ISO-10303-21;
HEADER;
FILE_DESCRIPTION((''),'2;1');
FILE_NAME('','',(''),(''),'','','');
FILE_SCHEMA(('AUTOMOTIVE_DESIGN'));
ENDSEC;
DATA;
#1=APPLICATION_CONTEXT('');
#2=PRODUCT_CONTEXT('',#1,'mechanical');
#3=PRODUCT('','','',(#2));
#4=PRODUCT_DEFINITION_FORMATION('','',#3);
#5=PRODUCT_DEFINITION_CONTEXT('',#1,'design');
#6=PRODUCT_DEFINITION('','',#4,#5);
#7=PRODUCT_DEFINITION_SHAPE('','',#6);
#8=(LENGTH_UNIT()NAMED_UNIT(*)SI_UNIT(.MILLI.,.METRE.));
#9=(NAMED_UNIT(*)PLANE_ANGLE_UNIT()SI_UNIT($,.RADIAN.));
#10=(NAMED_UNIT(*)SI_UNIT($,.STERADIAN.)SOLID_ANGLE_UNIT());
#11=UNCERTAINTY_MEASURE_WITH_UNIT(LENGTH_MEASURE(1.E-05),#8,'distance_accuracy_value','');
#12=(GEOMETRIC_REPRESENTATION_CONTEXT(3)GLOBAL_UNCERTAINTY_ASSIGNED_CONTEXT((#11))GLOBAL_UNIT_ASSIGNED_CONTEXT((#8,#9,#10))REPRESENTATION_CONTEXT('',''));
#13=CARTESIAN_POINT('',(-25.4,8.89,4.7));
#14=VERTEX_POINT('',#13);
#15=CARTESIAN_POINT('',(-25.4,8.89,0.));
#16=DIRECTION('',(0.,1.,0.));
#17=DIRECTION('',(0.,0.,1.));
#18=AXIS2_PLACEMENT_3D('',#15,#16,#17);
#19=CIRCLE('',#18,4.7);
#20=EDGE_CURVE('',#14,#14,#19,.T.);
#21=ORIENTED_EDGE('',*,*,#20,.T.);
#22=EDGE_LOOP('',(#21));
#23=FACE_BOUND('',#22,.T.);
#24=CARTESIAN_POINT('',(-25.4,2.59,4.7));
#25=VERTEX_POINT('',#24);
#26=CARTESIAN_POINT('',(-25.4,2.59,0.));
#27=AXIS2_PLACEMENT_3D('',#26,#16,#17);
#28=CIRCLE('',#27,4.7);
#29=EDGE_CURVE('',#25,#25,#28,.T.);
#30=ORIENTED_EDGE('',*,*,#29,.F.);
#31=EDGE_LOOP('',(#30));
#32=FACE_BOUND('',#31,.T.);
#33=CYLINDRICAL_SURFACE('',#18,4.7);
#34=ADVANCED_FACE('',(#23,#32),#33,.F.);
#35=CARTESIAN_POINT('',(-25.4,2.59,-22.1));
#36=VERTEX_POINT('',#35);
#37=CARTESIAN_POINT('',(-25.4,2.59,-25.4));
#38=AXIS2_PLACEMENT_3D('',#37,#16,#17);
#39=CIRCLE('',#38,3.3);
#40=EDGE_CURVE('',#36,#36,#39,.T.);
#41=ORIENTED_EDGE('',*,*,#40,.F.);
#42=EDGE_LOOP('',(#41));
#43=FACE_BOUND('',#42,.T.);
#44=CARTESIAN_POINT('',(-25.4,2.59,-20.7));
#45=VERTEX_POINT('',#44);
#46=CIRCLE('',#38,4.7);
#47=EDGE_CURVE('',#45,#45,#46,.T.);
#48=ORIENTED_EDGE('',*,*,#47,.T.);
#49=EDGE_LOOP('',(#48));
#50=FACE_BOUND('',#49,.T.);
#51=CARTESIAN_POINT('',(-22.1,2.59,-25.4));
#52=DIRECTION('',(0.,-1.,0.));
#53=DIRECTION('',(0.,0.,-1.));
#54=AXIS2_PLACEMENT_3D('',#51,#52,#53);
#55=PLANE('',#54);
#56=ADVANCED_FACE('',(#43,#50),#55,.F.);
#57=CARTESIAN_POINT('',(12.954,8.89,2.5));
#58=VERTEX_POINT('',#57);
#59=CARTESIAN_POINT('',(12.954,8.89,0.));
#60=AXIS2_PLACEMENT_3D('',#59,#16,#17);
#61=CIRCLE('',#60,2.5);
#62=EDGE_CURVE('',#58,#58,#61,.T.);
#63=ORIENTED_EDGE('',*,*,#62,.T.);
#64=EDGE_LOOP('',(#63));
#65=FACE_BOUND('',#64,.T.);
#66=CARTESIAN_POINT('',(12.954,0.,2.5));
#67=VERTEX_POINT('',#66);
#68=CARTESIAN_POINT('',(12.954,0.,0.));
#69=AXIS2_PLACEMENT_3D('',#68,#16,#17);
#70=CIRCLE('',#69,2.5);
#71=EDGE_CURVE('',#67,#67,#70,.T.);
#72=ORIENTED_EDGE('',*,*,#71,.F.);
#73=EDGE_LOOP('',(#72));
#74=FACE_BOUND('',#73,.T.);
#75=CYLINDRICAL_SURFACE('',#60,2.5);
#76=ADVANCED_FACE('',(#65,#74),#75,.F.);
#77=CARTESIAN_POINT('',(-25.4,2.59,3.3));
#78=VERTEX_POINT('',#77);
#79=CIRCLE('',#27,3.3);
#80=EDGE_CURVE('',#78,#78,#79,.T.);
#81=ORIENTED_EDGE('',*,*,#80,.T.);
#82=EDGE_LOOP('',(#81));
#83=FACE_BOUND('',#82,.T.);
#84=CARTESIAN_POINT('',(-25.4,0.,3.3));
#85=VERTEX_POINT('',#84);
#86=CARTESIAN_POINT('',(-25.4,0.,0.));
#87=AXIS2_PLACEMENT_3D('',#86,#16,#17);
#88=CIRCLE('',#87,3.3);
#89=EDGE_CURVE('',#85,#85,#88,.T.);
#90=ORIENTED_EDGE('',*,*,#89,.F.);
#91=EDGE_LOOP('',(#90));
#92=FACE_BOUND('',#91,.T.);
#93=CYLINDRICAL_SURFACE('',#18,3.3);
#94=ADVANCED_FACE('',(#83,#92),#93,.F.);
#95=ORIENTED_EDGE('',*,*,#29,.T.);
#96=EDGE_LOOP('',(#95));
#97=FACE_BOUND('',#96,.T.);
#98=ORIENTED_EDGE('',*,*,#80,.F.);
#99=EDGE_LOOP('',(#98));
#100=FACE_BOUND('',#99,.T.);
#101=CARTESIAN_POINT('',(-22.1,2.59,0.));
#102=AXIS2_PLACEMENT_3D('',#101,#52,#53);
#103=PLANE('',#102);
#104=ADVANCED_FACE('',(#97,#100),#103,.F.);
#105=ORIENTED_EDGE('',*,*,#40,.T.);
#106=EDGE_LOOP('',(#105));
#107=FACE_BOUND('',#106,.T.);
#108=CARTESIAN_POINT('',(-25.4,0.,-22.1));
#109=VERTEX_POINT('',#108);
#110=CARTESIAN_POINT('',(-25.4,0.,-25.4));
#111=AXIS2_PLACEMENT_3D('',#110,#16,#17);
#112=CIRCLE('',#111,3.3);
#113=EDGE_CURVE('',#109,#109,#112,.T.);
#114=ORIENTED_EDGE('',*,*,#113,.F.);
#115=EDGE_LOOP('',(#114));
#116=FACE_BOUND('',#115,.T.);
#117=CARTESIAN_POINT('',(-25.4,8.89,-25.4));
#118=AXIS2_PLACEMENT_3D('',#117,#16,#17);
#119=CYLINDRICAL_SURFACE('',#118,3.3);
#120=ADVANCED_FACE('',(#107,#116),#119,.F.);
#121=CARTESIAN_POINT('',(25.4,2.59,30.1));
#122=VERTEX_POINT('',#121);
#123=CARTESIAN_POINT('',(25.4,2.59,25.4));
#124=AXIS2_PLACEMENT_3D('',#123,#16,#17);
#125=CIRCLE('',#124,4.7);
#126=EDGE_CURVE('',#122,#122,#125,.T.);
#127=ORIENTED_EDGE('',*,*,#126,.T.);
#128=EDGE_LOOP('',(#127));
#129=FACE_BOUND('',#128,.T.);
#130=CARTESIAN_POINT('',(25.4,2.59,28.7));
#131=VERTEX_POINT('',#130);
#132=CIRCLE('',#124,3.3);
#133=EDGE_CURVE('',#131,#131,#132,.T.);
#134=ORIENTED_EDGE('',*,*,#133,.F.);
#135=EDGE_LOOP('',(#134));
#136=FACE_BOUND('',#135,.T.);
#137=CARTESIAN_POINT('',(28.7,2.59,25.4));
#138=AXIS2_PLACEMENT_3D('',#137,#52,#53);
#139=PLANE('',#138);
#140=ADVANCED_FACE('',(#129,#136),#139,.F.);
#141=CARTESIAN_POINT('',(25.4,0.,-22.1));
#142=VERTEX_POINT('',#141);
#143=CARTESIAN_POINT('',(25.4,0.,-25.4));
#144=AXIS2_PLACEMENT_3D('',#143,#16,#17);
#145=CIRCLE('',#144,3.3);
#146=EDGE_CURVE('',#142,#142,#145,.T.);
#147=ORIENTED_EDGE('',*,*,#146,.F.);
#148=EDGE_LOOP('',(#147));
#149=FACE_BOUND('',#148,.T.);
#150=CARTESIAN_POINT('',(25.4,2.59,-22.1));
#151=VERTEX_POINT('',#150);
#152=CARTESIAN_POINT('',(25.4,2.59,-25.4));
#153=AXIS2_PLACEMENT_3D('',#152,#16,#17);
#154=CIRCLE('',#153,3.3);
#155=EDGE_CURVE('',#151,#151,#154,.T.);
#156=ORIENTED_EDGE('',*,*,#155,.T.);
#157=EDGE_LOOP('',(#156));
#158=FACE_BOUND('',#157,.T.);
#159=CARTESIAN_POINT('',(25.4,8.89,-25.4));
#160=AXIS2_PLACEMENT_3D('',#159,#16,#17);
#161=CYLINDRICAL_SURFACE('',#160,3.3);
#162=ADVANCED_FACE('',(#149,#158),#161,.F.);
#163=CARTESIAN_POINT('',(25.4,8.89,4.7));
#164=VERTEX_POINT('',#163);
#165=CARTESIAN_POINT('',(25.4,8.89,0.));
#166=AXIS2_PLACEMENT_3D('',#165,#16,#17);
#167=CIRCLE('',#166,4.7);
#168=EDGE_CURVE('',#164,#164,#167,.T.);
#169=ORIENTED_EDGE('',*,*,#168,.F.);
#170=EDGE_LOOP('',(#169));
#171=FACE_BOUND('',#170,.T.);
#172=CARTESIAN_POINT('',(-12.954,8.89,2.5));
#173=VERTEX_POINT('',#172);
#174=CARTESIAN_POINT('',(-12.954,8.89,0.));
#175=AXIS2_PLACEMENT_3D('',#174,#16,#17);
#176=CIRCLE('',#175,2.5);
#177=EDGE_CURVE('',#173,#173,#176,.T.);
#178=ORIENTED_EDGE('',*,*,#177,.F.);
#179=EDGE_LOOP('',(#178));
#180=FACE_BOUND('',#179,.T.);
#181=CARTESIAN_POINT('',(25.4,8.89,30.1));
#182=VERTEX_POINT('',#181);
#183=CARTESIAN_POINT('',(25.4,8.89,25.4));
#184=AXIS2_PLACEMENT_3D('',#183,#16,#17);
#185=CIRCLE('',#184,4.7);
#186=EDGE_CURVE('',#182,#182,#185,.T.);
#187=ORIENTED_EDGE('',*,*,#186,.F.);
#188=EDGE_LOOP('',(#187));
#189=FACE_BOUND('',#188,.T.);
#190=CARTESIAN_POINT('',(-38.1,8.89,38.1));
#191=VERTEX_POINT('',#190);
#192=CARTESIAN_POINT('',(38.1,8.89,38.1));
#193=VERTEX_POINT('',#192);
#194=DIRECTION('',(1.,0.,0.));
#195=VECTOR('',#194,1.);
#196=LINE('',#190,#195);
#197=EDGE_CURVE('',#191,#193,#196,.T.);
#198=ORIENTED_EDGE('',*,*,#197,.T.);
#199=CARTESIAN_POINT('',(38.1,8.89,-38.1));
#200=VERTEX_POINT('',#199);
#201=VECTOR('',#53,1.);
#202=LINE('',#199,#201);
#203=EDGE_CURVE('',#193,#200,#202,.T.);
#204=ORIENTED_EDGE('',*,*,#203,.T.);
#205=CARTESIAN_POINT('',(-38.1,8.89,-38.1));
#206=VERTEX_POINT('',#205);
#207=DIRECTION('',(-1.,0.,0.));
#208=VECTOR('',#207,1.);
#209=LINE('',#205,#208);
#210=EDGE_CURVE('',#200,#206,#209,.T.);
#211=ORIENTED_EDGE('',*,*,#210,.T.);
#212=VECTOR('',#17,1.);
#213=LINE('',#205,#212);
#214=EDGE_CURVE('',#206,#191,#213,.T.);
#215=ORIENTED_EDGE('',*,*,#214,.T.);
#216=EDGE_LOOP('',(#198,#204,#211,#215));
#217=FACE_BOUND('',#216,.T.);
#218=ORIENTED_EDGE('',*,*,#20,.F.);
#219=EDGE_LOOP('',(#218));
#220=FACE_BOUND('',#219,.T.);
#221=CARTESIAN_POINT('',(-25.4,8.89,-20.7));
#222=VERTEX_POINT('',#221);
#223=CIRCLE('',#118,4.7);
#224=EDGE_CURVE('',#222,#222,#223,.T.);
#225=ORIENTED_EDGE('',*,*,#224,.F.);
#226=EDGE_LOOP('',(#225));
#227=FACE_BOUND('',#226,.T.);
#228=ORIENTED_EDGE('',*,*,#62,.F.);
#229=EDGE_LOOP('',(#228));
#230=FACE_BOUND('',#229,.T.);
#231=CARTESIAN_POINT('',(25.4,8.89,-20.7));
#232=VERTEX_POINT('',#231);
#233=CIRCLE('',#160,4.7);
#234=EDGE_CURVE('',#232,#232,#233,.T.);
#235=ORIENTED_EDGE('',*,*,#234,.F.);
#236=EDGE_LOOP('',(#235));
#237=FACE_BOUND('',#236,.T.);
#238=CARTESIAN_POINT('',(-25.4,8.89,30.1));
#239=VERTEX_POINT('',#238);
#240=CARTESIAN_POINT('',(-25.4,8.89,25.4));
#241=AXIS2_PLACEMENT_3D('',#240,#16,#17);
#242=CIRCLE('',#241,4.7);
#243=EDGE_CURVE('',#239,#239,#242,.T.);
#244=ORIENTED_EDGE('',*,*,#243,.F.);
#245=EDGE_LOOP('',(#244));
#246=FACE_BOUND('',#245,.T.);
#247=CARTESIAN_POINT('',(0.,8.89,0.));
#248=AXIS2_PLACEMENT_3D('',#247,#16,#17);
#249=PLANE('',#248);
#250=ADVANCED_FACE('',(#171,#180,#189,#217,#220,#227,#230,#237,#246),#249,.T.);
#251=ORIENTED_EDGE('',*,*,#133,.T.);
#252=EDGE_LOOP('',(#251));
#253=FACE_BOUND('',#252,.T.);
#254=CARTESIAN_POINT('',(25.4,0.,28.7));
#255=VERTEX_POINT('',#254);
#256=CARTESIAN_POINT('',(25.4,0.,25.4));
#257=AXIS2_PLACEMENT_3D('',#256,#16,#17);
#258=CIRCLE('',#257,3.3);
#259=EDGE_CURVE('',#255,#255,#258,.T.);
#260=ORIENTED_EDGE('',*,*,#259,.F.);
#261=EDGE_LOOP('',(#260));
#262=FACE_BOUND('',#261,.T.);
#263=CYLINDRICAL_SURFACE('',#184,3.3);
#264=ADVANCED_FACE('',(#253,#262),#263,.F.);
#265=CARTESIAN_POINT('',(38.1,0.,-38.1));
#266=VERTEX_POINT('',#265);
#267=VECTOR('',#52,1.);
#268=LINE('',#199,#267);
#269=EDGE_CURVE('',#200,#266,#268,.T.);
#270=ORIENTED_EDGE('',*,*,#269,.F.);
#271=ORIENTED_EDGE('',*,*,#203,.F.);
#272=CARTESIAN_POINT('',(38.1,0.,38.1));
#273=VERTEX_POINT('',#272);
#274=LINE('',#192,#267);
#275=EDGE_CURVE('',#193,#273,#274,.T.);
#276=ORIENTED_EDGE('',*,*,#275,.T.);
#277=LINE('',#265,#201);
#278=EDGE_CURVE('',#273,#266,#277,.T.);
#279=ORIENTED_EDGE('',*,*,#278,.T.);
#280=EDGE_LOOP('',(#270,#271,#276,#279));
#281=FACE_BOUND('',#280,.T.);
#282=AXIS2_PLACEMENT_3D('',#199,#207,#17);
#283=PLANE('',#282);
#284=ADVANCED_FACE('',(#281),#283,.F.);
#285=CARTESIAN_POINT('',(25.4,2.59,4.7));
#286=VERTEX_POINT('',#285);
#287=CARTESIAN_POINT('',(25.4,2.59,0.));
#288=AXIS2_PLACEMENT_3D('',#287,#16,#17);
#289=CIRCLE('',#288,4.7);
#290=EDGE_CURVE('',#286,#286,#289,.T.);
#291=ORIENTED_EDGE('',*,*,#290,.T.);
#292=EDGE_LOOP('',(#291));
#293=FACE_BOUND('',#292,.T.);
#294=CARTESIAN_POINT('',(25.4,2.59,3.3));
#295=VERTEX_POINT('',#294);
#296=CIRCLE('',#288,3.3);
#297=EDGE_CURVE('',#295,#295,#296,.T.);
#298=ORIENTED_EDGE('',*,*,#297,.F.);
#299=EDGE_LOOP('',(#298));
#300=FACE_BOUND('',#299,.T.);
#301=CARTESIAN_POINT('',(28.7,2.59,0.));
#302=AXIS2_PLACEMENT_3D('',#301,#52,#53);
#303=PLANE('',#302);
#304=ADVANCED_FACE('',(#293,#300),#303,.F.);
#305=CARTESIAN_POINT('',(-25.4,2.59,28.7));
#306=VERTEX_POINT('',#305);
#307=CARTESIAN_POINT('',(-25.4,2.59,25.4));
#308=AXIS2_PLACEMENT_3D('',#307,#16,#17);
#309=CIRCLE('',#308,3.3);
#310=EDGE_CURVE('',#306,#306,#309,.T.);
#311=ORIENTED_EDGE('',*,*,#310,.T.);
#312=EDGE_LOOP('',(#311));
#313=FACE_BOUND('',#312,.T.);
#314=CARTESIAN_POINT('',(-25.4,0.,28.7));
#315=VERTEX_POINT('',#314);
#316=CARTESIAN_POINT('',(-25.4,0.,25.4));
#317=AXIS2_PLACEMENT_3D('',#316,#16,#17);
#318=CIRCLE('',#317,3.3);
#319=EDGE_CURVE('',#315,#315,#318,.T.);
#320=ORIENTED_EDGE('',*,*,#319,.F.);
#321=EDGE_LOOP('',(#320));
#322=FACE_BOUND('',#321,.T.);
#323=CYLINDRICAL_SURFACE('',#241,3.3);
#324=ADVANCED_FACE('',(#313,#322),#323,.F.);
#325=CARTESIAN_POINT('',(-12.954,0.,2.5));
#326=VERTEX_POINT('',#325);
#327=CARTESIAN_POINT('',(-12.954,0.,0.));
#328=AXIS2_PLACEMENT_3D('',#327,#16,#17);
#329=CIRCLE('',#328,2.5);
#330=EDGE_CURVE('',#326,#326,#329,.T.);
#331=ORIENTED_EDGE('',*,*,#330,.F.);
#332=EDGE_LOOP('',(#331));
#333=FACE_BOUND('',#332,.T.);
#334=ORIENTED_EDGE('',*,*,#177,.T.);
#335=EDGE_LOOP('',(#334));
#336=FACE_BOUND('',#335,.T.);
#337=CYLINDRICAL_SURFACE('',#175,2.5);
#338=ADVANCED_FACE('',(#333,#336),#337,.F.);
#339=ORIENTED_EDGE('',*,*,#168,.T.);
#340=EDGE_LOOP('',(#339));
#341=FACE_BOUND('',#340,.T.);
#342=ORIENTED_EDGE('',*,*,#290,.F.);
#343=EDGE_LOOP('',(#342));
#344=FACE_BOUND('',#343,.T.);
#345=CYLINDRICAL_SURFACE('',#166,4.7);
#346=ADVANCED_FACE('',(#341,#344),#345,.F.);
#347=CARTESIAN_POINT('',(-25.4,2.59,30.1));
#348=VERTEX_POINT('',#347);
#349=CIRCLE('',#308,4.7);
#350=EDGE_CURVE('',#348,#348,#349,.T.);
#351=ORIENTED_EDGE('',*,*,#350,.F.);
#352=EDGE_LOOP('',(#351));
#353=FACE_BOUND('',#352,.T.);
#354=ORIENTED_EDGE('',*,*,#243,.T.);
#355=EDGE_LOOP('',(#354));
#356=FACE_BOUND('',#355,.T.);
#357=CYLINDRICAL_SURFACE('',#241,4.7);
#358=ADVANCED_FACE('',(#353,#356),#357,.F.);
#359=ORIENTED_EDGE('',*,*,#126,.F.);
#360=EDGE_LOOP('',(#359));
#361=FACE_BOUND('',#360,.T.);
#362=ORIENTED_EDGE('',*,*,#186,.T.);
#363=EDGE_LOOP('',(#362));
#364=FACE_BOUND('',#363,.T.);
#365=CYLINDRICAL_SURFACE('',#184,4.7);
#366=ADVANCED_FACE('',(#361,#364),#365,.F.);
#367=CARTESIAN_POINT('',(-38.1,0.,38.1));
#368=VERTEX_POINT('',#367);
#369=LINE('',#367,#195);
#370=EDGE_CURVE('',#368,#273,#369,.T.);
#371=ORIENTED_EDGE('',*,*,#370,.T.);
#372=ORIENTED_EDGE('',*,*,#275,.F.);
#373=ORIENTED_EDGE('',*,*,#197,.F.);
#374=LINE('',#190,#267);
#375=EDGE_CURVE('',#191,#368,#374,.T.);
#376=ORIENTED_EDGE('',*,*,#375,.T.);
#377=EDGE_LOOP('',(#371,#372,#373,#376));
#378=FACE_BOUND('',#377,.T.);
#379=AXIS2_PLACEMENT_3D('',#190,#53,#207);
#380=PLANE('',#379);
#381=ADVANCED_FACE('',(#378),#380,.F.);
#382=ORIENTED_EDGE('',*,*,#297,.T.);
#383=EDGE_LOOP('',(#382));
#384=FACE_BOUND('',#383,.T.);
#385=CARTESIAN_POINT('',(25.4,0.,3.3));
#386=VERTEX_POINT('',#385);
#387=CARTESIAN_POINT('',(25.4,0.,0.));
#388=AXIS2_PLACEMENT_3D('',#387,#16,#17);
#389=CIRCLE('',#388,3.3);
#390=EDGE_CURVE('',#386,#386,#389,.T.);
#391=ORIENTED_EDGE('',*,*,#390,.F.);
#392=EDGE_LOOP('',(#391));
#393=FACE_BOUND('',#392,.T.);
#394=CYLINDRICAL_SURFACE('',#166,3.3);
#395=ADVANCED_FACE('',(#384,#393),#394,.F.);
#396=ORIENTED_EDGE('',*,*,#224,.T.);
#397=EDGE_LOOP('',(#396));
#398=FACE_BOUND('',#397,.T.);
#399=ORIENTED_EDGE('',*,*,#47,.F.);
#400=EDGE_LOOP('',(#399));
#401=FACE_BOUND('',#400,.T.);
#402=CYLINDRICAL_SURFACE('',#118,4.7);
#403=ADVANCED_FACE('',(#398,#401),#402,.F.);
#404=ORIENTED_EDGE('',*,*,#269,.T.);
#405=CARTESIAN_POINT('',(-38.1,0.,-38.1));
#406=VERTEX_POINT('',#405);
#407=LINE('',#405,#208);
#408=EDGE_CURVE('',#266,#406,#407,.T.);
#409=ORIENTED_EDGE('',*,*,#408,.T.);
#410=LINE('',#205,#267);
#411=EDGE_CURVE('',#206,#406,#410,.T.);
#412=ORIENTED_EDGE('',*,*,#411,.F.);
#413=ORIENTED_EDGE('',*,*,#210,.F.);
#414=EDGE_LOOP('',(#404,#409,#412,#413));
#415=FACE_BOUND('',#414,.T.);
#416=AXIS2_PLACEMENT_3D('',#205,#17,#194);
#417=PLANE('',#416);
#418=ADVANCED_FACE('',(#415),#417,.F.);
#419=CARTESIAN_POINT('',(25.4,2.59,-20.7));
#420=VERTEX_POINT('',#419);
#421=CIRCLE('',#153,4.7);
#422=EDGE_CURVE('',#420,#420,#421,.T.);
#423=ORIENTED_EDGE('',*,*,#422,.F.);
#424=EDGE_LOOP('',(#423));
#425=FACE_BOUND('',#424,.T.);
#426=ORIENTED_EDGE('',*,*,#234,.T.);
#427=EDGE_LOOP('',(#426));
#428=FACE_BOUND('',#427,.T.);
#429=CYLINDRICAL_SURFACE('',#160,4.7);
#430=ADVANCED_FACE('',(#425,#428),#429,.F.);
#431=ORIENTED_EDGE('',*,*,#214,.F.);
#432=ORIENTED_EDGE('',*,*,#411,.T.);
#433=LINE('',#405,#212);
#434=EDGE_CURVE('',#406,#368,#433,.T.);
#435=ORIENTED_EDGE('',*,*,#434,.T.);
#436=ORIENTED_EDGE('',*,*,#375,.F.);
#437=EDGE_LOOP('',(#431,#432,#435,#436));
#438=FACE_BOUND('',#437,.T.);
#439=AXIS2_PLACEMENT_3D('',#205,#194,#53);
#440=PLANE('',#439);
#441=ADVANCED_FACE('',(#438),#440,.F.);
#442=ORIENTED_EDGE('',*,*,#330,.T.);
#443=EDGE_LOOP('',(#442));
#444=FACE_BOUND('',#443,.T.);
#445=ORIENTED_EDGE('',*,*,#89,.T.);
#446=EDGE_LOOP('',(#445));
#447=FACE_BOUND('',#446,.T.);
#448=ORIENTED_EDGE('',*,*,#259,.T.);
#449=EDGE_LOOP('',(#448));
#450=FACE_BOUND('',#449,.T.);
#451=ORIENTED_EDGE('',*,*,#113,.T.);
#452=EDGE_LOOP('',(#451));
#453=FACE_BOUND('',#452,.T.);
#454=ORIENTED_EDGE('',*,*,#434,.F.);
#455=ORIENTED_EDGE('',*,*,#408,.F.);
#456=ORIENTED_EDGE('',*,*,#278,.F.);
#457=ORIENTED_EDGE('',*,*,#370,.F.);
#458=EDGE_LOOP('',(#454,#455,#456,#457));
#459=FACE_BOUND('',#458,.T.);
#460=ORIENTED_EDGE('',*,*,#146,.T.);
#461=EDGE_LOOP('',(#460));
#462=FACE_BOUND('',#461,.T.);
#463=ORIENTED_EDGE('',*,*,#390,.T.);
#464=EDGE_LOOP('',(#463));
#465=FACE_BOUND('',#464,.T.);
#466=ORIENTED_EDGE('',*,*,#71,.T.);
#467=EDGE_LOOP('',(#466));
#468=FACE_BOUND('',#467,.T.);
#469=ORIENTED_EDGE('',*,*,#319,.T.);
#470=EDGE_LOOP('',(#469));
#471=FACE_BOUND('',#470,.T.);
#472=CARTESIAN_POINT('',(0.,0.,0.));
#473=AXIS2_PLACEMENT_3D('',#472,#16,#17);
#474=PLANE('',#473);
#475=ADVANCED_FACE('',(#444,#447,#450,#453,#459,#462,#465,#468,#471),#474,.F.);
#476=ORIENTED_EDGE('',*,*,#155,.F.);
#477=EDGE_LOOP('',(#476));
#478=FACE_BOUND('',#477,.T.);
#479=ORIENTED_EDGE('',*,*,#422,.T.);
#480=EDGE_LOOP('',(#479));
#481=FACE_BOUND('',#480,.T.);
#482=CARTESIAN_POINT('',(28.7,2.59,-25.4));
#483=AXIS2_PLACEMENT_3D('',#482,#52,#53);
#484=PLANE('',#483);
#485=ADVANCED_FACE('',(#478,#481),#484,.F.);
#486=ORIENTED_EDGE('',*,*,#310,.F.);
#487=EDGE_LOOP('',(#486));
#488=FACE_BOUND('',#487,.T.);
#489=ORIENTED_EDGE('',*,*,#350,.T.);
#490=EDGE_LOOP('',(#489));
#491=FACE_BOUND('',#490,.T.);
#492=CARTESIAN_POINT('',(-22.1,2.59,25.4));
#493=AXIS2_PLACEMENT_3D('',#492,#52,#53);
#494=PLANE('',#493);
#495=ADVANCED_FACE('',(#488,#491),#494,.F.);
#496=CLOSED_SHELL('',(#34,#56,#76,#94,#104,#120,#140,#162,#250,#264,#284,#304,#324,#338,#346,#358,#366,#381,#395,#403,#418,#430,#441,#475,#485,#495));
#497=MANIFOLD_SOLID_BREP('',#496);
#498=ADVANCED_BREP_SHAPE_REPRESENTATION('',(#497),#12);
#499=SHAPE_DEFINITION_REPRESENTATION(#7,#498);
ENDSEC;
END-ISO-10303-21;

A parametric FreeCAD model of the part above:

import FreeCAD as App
import Part
import Sketcher
from FreeCAD import Vector

doc = App.newDocument("Part")
body = doc.addObject("PartDesign::Body", "Body")

# Sketch on XZ plane
sketch1 = body.newObject("Sketcher::SketchObject", "Sketch")
sketch1.AttachmentSupport = (doc.getObject("XZ_Plane"), [""])
sketch1.MapMode = "FlatFace"
sketch1.addGeometry([
    Part.LineSegment(Vector(-38, -38, 0), Vector(-38, 38, 0)),
    Part.LineSegment(Vector(-38, 38, 0), Vector(38, 38, 0)),
    Part.LineSegment(Vector(38, 38, 0), Vector(38, -38, 0)),
    Part.LineSegment(Vector(38, -38, 0), Vector(-38, -38, 0)),
], False)
sketch1.addConstraint([
    Sketcher.Constraint("Coincident", 0, 2, 1, 1),
    Sketcher.Constraint("Coincident", 1, 2, 2, 1),
    Sketcher.Constraint("Coincident", 2, 2, 3, 1),
    Sketcher.Constraint("Coincident", 3, 2, 0, 1),
    Sketcher.Constraint("Vertical", 0),
    Sketcher.Constraint("Horizontal", 1),
    Sketcher.Constraint("Vertical", 2),
    Sketcher.Constraint("Horizontal", 3),
    Sketcher.Constraint("Symmetric", 0, 2, 2, 2, -1, 1),
    Sketcher.Constraint("Equal", 3, 0),
    Sketcher.Constraint("DistanceX", 1, 1, 1, 2, 76.2),
])
pad1 = body.newObject("PartDesign::Pad", "Pad")
pad1.Profile = sketch1
pad1.Length = 8.89
pad1.Reversed = True

# Sketch on XZ plane
sketch2 = body.newObject("Sketcher::SketchObject", "Sketch001")
sketch2.AttachmentSupport = (doc.getObject("XZ_Plane"), [""])
sketch2.MapMode = "FlatFace"
sketch2.AttachmentOffset = App.Placement(Vector(0, 0, -8.89), App.Rotation())
sketch2.addGeometry([
    Part.Circle(Vector(-13, 0, 0), Vector(0, 0, 1), 2.5),
    Part.Circle(Vector(13, 0, 0), Vector(0, 0, 1), 2.5),
], False)
sketch2.addConstraint([
    Sketcher.Constraint("Equal", 0, 1),
    Sketcher.Constraint("Symmetric", 0, 3, 1, 3, -1, 1),
    Sketcher.Constraint("PointOnObject", 0, 3, -1),
    Sketcher.Constraint("Diameter", 0, 5.0),
    Sketcher.Constraint("DistanceX", 0, 3, -1, 1, 12.954),
])
doc.recompute()
hole = body.newObject("PartDesign::Hole", "Hole")
hole.Profile = sketch2
hole.ThreadType = "None"
hole.Diameter = 5
hole.DepthType = "Dimension"
hole.Depth = 8.89
hole.DrillPoint = "Angled"
hole.DrillPointAngle = 118
hole.Reversed = True

# Sketch on XZ plane
sketch3 = body.newObject("Sketcher::SketchObject", "Sketch002")
sketch3.AttachmentSupport = (doc.getObject("XZ_Plane"), [""])
sketch3.MapMode = "FlatFace"
sketch3.AttachmentOffset = App.Placement(Vector(0, 0, -8.89), App.Rotation())
sketch3.addGeometry([
    Part.Circle(Vector(-25.4, -25.4, 0), Vector(0, 0, 1), 3.3),  # 0
    Part.Circle(Vector(25.4, -25.4, 0), Vector(0, 0, 1), 3.3),  # 1
    Part.Circle(Vector(25.4, 25.4, 0), Vector(0, 0, 1), 3.3),  # 2
    Part.Circle(Vector(-25.4, 25.4, 0), Vector(0, 0, 1), 3.3),  # 3
    Part.Circle(Vector(-25.4, 0, 0), Vector(0, 0, 1), 3.3),  # 4
    Part.Circle(Vector(25.4, 0, 0), Vector(0, 0, 1), 3.3),  # 5
], False)
sketch3.addConstraint([
    Sketcher.Constraint("Equal", 0, 1),
    Sketcher.Constraint("Equal", 1, 2),
    Sketcher.Constraint("Equal", 2, 3),
    Sketcher.Constraint("Equal", 3, 4),
    Sketcher.Constraint("Equal", 4, 5),
    Sketcher.Constraint("Symmetric", 0, 3, 2, 3, -1, 1),
    Sketcher.Constraint("Symmetric", 1, 3, 3, 3, -1, 1),
    Sketcher.Constraint("Symmetric", 4, 3, 5, 3, -1, 1),
    Sketcher.Constraint("Symmetric", 0, 3, 1, 3, -2),
    Sketcher.Constraint("PointOnObject", 4, 3, -1),
    Sketcher.Constraint("Vertical", 3, 3, 4, 3),
    Sketcher.Constraint("Diameter", 0, 6.6),
    Sketcher.Constraint("DistanceX", 0, 3, -1, 1, 25.4),
    Sketcher.Constraint("DistanceY", 0, 3, -1, 1, 25.4),
])
doc.recompute()
hole2 = body.newObject("PartDesign::Hole", "Hole001")
hole2.Profile = sketch3
hole2.ThreadType = "None"
hole2.Diameter = 6.6
hole2.DepthType = "Dimension"
hole2.Depth = 8.89
hole2.DrillPoint = "Angled"
hole2.DrillPointAngle = 118
hole2.HoleCutType = "Counterbore"
hole2.HoleCutDiameter = 9.4
hole2.HoleCutDepth = 6.3
hole2.Reversed = True

doc.recompute()
